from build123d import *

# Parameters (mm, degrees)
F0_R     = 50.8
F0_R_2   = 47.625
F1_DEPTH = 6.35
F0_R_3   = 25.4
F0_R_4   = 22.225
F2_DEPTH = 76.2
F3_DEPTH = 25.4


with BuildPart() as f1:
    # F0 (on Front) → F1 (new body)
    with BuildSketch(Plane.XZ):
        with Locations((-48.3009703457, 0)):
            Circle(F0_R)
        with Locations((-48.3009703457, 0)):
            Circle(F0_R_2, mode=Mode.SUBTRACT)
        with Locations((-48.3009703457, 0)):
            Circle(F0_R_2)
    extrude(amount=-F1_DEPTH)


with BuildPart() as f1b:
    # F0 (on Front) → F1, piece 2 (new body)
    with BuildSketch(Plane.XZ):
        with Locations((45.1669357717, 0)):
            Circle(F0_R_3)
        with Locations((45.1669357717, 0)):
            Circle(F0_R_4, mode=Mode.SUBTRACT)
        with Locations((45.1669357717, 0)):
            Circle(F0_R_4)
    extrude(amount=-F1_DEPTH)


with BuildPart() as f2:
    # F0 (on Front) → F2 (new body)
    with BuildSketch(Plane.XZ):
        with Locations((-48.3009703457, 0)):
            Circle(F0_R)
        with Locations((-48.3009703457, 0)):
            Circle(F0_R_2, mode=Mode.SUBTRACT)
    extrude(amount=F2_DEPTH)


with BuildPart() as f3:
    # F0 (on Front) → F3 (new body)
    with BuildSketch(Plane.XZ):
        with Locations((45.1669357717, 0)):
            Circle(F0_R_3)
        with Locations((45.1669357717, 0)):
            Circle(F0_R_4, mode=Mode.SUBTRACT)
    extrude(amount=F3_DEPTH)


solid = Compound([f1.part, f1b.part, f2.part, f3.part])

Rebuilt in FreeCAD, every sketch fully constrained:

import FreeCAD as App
import Part
import Sketcher
Q = App.Units.Quantity

doc = App.newDocument("Part")
body = doc.addObject("PartDesign::Body", "Body")

sketch1 = body.newObject("Sketcher::SketchObject", "Sketch")
sketch1.AttachmentSupport = (doc.getObject("XZ_Plane"), [""])
sketch1.MapMode = "FlatFace"
sketch1.addGeometry(Part.Circle(App.Vector(-48.30097, 0, 0), App.Vector(0, 0, 1), 50.8), False)
sketch1.addConstraint([
    Sketcher.Constraint("PointOnObject", 0, 3, -1),
    Sketcher.Constraint("Diameter", 0, Q("4 in")),
    Sketcher.Constraint("DistanceX", 0, 3, -1, 1, Q("48.30097 mm")),
])
pad1 = body.newObject("PartDesign::Pad", "Pad")
pad1.Profile = sketch1
pad1.Length = Q("0.25 in")
pad1.Reversed = True
body2 = doc.addObject("PartDesign::Body", "Body001")

sketch2 = body2.newObject("Sketcher::SketchObject", "Sketch001")
sketch2.AttachmentSupport = (doc.getObject("XZ_Plane001"), [""])
sketch2.MapMode = "FlatFace"
sketch2.addGeometry(Part.Circle(App.Vector(45.166936, 0, 0), App.Vector(0, 0, 1), 25.4), False)
sketch2.addConstraint([
    Sketcher.Constraint("PointOnObject", 0, 3, -1),
    Sketcher.Constraint("Diameter", 0, Q("2 in")),
    Sketcher.Constraint("DistanceX", -1, 1, 0, 3, Q("45.166936 mm")),
])
pad2 = body2.newObject("PartDesign::Pad", "Pad001")
pad2.Profile = sketch2
pad2.Length = Q("0.25 in")
pad2.Reversed = True
body3 = doc.addObject("PartDesign::Body", "Body002")

sketch3 = body3.newObject("Sketcher::SketchObject", "Sketch002")
sketch3.AttachmentSupport = (doc.getObject("XZ_Plane002"), [""])
sketch3.MapMode = "FlatFace"
sketch3.addGeometry([
    Part.Circle(App.Vector(-48.30097, 0, 0), App.Vector(0, 0, 1), 50.8),
    Part.Circle(App.Vector(-48.30097, 0, 0), App.Vector(0, 0, 1), 47.625),
], False)
sketch3.addConstraint([
    Sketcher.Constraint("Coincident", 1, 3, 0, 3),
    Sketcher.Constraint("PointOnObject", 0, 3, -1),
    Sketcher.Constraint("Diameter", 0, Q("4 in")),
    Sketcher.Constraint("Diameter", 1, Q("3.75 in")),
    Sketcher.Constraint("DistanceX", 0, 3, -1, 1, Q("48.30097 mm")),
])
pad3 = body3.newObject("PartDesign::Pad", "Pad002")
pad3.Profile = sketch3
pad3.Length = Q("3 in")
body4 = doc.addObject("PartDesign::Body", "Body003")

sketch4 = body4.newObject("Sketcher::SketchObject", "Sketch003")
sketch4.AttachmentSupport = (doc.getObject("XZ_Plane003"), [""])
sketch4.MapMode = "FlatFace"
sketch4.addGeometry([
    Part.Circle(App.Vector(45.166936, 0, 0), App.Vector(0, 0, 1), 25.4),
    Part.Circle(App.Vector(45.166936, 0, 0), App.Vector(0, 0, 1), 22.225),
], False)
sketch4.addConstraint([
    Sketcher.Constraint("Coincident", 1, 3, 0, 3),
    Sketcher.Constraint("PointOnObject", 0, 3, -1),
    Sketcher.Constraint("Diameter", 0, Q("2 in")),
    Sketcher.Constraint("Diameter", 1, Q("1.75 in")),
    Sketcher.Constraint("DistanceX", -1, 1, 0, 3, Q("45.166936 mm")),
])
pad4 = body4.newObject("PartDesign::Pad", "Pad003")
pad4.Profile = sketch4
pad4.Length = Q("1 in")

doc.recompute()
